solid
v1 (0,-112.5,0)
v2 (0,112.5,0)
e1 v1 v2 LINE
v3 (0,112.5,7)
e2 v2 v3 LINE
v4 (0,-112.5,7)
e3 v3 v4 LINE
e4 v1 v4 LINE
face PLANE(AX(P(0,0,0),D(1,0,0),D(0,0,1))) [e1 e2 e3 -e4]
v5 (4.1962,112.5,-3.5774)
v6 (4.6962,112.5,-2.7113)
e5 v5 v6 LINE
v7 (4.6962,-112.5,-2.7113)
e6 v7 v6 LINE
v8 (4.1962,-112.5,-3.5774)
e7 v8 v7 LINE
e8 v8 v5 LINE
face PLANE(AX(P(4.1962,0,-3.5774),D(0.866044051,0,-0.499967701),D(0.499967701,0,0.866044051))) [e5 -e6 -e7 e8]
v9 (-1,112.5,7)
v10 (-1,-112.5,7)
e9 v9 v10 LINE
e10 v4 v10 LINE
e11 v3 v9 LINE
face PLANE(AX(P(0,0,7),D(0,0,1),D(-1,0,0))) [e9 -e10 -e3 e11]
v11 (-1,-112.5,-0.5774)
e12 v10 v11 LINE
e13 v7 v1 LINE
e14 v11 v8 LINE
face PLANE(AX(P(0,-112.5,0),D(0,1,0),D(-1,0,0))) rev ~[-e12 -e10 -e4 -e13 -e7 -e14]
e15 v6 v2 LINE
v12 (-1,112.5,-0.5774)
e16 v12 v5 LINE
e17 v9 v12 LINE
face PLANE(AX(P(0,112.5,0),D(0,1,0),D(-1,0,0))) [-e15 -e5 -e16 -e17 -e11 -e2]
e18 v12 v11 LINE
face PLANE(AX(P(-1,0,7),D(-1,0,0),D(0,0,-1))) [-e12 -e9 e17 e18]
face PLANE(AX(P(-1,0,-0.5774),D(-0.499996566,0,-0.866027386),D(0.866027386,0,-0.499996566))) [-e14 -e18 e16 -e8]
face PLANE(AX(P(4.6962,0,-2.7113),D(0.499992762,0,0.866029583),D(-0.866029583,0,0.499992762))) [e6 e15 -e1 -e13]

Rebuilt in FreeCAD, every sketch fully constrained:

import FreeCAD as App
import Part
import Sketcher
from FreeCAD import Vector
Q = App.Units.Quantity


def add_polygon(sketch, points):
    """Adds a closed chain of lines whose ends are joined by coincident constraints."""
    first, n = sketch.GeometryCount, len(points)
    for a, b in zip(points, points[1:] + points[:1]):
        sketch.addGeometry(Part.LineSegment(App.Vector(*a, 0), App.Vector(*b, 0)), False)
    for i in range(n):
        sketch.addConstraint(Sketcher.Constraint("Coincident", first + i, 2, first + (i + 1) % n, 1))

doc = App.newDocument("Part")
body = doc.addObject("PartDesign::Body", "Body")

sketch1 = body.newObject("Sketcher::SketchObject", "Sketch")
sketch1.AttachmentSupport = (doc.getObject("XZ_Plane"), [""])
sketch1.MapMode = "FlatFace"
add_polygon(sketch1, [(0, 7), (0, 0), (4.7, -2.7), (4.2, -3.6), (-1, -0.6), (-1, 7)])
sketch1.addConstraint(Sketcher.Constraint("Vertical", 0))
sketch1.addConstraint(Sketcher.Constraint("Vertical", 4))
sketch1.addConstraint(Sketcher.Constraint("Horizontal", 5))
sketch1.addConstraint(Sketcher.Constraint("Coincident", 0, 2, -1, 1))
sketch1.addConstraint(Sketcher.Constraint("Perpendicular", 1, 2))
sketch1.addConstraint(Sketcher.Constraint("Perpendicular", 2, 3))
sketch1.addConstraint(Sketcher.Constraint("DistanceX", 5, 1, 5, 2, 1.0))
sketch1.addConstraint(Sketcher.Constraint("DistanceY", 0, 2, 0, 1, 7.0))
sketch1.addConstraint(Sketcher.Constraint("Distance", 2, 1.0))
sketch1.addConstraint(Sketcher.Constraint("Distance", 3, 6.0))
sketch1.addConstraint(Sketcher.Constraint("Angle", 1, Q("-29.9995 deg")))
pad1 = body.newObject("PartDesign::Pad", "Pad")
pad1.Profile = sketch1
pad1.Length = 225
pad1.Midplane = True

doc.recompute()
